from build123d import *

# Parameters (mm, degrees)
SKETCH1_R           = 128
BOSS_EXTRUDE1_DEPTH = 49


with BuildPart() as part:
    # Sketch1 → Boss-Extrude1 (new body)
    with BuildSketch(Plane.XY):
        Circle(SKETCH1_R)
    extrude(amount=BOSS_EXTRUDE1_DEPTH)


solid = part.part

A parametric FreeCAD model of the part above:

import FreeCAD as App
import Part
import Sketcher
from FreeCAD import Vector
Q = App.Units.Quantity

doc = App.newDocument("Part")
body = doc.addObject("PartDesign::Body", "Body")

# Sketch on XY plane
sketch1 = body.newObject("Sketcher::SketchObject", "Sketch")
sketch1.AttachmentSupport = (doc.getObject("XY_Plane"), [""])
sketch1.MapMode = "FlatFace"
sketch1.addGeometry(Part.Circle(Vector(0, 0, 0), Vector(0, 0, 1), 128), False)
sketch1.addConstraint([
    Sketcher.Constraint("Coincident", 0, 3, -1, 1),
    Sketcher.Constraint("Diameter", 0, Q("256 mm")),
])
pad1 = body.newObject("PartDesign::Pad", "Pad")
pad1.Profile = sketch1
pad1.Length = 49

doc.recompute()
